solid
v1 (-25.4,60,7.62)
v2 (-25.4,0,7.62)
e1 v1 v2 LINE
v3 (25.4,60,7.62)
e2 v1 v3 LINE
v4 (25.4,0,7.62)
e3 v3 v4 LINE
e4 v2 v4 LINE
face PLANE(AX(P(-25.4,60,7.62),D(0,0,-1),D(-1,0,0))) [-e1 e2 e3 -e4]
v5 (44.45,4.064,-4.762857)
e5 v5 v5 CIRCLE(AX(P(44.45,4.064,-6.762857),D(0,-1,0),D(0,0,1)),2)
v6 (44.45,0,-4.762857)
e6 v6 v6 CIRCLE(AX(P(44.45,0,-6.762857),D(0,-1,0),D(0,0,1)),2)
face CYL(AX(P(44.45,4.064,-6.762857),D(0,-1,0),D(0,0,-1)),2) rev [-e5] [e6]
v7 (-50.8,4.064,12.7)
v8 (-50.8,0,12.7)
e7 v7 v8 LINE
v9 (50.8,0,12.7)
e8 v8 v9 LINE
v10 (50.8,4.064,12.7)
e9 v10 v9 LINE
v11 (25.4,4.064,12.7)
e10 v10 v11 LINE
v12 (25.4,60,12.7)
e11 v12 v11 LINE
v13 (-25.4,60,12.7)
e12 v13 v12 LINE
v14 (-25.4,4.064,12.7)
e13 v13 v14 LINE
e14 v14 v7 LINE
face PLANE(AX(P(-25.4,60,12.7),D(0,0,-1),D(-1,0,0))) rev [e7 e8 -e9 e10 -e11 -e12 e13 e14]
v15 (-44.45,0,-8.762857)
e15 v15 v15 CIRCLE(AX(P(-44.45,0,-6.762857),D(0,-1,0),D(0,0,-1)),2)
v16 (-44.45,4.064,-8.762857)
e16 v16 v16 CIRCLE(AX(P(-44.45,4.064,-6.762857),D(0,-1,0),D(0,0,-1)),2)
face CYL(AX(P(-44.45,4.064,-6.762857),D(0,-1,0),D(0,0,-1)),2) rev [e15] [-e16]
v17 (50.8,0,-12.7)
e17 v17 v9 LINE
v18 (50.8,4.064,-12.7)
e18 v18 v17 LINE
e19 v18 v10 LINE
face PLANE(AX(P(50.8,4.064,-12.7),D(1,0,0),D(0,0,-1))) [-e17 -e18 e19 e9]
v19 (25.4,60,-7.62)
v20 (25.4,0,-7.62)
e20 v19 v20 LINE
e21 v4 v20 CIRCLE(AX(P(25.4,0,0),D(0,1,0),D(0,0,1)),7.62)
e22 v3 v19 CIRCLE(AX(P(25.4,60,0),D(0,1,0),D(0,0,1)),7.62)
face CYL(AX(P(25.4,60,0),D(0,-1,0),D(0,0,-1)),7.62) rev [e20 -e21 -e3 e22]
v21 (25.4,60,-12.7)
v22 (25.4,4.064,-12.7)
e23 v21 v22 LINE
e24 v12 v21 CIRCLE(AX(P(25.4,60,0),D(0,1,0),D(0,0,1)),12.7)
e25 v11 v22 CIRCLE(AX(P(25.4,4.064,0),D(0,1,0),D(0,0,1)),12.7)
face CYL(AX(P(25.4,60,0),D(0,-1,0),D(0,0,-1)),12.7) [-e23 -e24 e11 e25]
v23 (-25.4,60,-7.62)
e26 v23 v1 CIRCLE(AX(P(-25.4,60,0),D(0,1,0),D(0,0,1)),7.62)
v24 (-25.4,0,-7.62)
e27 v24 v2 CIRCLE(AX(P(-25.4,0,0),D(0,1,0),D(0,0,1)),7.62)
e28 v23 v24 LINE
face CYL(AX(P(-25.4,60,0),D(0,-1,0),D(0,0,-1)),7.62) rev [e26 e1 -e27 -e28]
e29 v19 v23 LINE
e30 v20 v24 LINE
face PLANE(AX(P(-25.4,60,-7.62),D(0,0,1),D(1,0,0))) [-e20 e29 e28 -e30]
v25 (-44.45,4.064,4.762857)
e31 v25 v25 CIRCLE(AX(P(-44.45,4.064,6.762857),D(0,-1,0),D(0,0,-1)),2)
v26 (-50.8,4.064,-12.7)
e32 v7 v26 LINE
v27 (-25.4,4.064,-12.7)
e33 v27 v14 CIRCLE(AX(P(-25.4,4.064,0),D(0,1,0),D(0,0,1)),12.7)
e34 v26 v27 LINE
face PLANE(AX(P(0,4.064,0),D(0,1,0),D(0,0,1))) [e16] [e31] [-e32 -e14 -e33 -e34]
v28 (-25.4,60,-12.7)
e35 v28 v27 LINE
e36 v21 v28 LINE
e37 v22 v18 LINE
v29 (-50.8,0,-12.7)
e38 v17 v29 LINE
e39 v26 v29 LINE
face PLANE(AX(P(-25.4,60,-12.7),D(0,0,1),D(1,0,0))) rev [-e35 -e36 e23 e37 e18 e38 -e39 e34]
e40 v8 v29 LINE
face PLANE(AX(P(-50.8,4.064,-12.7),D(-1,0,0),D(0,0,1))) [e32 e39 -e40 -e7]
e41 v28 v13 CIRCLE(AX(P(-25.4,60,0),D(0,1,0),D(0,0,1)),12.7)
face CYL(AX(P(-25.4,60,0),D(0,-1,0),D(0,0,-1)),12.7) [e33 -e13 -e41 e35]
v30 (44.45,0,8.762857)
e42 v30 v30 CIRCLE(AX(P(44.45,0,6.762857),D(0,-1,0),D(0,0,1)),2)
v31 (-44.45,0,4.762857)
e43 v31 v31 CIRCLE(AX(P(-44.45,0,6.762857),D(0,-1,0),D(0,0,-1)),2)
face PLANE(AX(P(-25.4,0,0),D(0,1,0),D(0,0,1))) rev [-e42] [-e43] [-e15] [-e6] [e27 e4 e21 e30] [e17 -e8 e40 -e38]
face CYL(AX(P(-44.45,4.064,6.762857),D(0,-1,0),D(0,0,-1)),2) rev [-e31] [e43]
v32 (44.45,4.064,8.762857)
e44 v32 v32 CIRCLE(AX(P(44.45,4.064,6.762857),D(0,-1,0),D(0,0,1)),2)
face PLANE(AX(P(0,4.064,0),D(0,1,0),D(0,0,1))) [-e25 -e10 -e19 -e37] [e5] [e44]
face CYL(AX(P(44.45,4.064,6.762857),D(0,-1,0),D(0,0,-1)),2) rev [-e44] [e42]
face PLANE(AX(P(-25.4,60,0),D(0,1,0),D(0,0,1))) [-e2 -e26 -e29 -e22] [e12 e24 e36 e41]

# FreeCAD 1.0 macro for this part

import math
import FreeCAD as App
import Part
import Sketcher

V = App.Vector
Q = App.Units.Quantity

doc = App.newDocument("Part")
body = doc.addObject("PartDesign::Body", "Body")

# Sketch on XZ plane
sketch1 = body.newObject("Sketcher::SketchObject", "Sketch")
sketch1.AttachmentSupport = (doc.getObject("XZ_Plane"), [""])
sketch1.MapMode = "FlatFace"
sketch1.addGeometry([
    Part.LineSegment(V(-25.4, 12.7, 0), V(25.4, 12.7, 0)),  # 0
    Part.ArcOfCircle(Part.Circle(V(25.4, 0, 0), V(0, 0, 1), 12.7), math.radians(-90), math.radians(90)),  # 1
    Part.LineSegment(V(25.4, -12.7, 0), V(-25.4, -12.7, 0)),  # 2
    Part.ArcOfCircle(Part.Circle(V(-25.4, 0, 0), V(0, 0, 1), 12.7), math.radians(90), math.radians(270)),  # 3
    Part.LineSegment(V(25.4, 7.62, 0), V(-25.4, 7.62, 0)),  # 4
    Part.ArcOfCircle(Part.Circle(V(-25.4, 0, 0), V(0, 0, 1), 7.62), math.radians(90), math.radians(270)),  # 5
    Part.LineSegment(V(-25.4, -7.62, 0), V(25.4, -7.62, 0)),  # 6
    Part.ArcOfCircle(Part.Circle(V(25.4, 0, 0), V(0, 0, 1), 7.62), math.radians(-90), math.radians(90)),  # 7
], False)
sketch1.addConstraint([
    Sketcher.Constraint("Tangent", 0, 2, 1, 2),
    Sketcher.Constraint("Tangent", 1, 1, 2, 1),
    Sketcher.Constraint("Tangent", 2, 2, 3, 2),
    Sketcher.Constraint("Tangent", 3, 1, 0, 1),
    Sketcher.Constraint("Tangent", 4, 2, 5, 1),
    Sketcher.Constraint("Tangent", 5, 2, 6, 1),
    Sketcher.Constraint("Tangent", 6, 2, 7, 1),
    Sketcher.Constraint("Tangent", 7, 2, 4, 1),
    Sketcher.Constraint("Horizontal", 0),
    Sketcher.Constraint("Horizontal", 2),
    Sketcher.Constraint("Horizontal", 4),
    Sketcher.Constraint("Horizontal", 6),
    Sketcher.Constraint("Coincident", 5, 3, 3, 3),
    Sketcher.Constraint("Symmetric", 1, 3, 3, 3, -1, 1),
    Sketcher.Constraint("Vertical", 7, 3, 0, 2),
    Sketcher.Constraint("Radius", 1, Q("0.5 in")),
    Sketcher.Constraint("Radius", 5, Q("0.3 in")),
    Sketcher.Constraint("DistanceX", 0, 1, 0, 2, Q("2 in")),
])
pad1 = body.newObject("PartDesign::Pad", "Pad")
pad1.Profile = sketch1
pad1.Length = 60
pad1.Reversed = True

# Sketch on XZ plane
sketch2 = body.newObject("Sketcher::SketchObject", "Sketch001")
sketch2.AttachmentSupport = (doc.getObject("XZ_Plane"), [""])
sketch2.MapMode = "FlatFace"
sketch2.addGeometry([
    Part.LineSegment(V(-50.8, 12.7, 0), V(-50.8, -12.7, 0)),  # 0
    Part.LineSegment(V(-50.8, -12.7, 0), V(50.8, -12.7, 0)),  # 1
    Part.LineSegment(V(50.8, -12.7, 0), V(50.8, 12.7, 0)),  # 2
    Part.LineSegment(V(50.8, 12.7, 0), V(-50.8, 12.7, 0)),  # 3
    Part.Circle(V(-44.45, -6.762857, 0), V(0, 0, 1), 2),  # 4
    Part.Circle(V(44.45, -6.762857, 0), V(0, 0, 1), 2),  # 5
    Part.Circle(V(-44.45, 6.762857, 0), V(0, 0, 1), 2),  # 6
    Part.LineSegment(V(25.4, -7.62, 0), V(-25.4, -7.62, 0)),  # 7
    Part.ArcOfCircle(Part.Circle(V(-25.4, 0, 0), V(0, 0, 1), 7.62), math.radians(90), math.radians(270)),  # 8
    Part.LineSegment(V(-25.4, 7.62, 0), V(25.4, 7.62, 0)),  # 9
    Part.ArcOfCircle(Part.Circle(V(25.4, 0, 0), V(0, 0, 1), 7.62), math.radians(-90), math.radians(90)),  # 10
    Part.Circle(V(44.45, 6.762857, 0), V(0, 0, 1), 2),  # 11
], False)
sketch2.addConstraint([
    Sketcher.Constraint("Coincident", 0, 2, 1, 1),
    Sketcher.Constraint("Coincident", 1, 2, 2, 1),
    Sketcher.Constraint("Coincident", 2, 2, 3, 1),
    Sketcher.Constraint("Coincident", 3, 2, 0, 1),
    Sketcher.Constraint("Tangent", 7, 2, 8, 2),
    Sketcher.Constraint("Tangent", 8, 1, 9, 1),
    Sketcher.Constraint("Tangent", 9, 2, 10, 2),
    Sketcher.Constraint("Tangent", 10, 1, 7, 1),
    Sketcher.Constraint("Vertical", 0),
    Sketcher.Constraint("Horizontal", 1),
    Sketcher.Constraint("Vertical", 2),
    Sketcher.Constraint("Horizontal", 3),
    Sketcher.Constraint("Horizontal", 7),
    Sketcher.Constraint("Horizontal", 9),
    Sketcher.Constraint("Equal", 4, 5),
    Sketcher.Constraint("Equal", 5, 6),
    Sketcher.Constraint("Equal", 6, 11),
    Sketcher.Constraint("Symmetric", 5, 3, 6, 3, -1, 1),
    Sketcher.Constraint("Symmetric", 8, 3, 10, 3, -1, 1),
    Sketcher.Constraint("Symmetric", 4, 3, 11, 3, -1, 1),
    Sketcher.Constraint("Symmetric", 0, 2, 2, 2, -1, 1),
    Sketcher.Constraint("Symmetric", 4, 3, 5, 3, -2),
    Sketcher.Constraint("Radius", 8, Q("0.3 in")),
    Sketcher.Constraint("DistanceX", 1, 1, 1, 2, Q("4 in")),
    Sketcher.Constraint("DistanceX", 7, 2, 7, 1, Q("2 in")),
    Sketcher.Constraint("DistanceY", 0, 2, 0, 1, Q("1 in")),
    Sketcher.Constraint("DistanceX", 4, 3, 5, 3, Q("3.5 in")),
    Sketcher.Constraint("Diameter", 4, 4.0),
    Sketcher.Constraint("DistanceY", 4, 3, -1, 1, 6.762857),
])
pad2 = body.newObject("PartDesign::Pad", "Pad001")
pad2.Profile = sketch2
pad2.Length = Q("0.16 in")
pad2.Reversed = True

doc.recompute()
